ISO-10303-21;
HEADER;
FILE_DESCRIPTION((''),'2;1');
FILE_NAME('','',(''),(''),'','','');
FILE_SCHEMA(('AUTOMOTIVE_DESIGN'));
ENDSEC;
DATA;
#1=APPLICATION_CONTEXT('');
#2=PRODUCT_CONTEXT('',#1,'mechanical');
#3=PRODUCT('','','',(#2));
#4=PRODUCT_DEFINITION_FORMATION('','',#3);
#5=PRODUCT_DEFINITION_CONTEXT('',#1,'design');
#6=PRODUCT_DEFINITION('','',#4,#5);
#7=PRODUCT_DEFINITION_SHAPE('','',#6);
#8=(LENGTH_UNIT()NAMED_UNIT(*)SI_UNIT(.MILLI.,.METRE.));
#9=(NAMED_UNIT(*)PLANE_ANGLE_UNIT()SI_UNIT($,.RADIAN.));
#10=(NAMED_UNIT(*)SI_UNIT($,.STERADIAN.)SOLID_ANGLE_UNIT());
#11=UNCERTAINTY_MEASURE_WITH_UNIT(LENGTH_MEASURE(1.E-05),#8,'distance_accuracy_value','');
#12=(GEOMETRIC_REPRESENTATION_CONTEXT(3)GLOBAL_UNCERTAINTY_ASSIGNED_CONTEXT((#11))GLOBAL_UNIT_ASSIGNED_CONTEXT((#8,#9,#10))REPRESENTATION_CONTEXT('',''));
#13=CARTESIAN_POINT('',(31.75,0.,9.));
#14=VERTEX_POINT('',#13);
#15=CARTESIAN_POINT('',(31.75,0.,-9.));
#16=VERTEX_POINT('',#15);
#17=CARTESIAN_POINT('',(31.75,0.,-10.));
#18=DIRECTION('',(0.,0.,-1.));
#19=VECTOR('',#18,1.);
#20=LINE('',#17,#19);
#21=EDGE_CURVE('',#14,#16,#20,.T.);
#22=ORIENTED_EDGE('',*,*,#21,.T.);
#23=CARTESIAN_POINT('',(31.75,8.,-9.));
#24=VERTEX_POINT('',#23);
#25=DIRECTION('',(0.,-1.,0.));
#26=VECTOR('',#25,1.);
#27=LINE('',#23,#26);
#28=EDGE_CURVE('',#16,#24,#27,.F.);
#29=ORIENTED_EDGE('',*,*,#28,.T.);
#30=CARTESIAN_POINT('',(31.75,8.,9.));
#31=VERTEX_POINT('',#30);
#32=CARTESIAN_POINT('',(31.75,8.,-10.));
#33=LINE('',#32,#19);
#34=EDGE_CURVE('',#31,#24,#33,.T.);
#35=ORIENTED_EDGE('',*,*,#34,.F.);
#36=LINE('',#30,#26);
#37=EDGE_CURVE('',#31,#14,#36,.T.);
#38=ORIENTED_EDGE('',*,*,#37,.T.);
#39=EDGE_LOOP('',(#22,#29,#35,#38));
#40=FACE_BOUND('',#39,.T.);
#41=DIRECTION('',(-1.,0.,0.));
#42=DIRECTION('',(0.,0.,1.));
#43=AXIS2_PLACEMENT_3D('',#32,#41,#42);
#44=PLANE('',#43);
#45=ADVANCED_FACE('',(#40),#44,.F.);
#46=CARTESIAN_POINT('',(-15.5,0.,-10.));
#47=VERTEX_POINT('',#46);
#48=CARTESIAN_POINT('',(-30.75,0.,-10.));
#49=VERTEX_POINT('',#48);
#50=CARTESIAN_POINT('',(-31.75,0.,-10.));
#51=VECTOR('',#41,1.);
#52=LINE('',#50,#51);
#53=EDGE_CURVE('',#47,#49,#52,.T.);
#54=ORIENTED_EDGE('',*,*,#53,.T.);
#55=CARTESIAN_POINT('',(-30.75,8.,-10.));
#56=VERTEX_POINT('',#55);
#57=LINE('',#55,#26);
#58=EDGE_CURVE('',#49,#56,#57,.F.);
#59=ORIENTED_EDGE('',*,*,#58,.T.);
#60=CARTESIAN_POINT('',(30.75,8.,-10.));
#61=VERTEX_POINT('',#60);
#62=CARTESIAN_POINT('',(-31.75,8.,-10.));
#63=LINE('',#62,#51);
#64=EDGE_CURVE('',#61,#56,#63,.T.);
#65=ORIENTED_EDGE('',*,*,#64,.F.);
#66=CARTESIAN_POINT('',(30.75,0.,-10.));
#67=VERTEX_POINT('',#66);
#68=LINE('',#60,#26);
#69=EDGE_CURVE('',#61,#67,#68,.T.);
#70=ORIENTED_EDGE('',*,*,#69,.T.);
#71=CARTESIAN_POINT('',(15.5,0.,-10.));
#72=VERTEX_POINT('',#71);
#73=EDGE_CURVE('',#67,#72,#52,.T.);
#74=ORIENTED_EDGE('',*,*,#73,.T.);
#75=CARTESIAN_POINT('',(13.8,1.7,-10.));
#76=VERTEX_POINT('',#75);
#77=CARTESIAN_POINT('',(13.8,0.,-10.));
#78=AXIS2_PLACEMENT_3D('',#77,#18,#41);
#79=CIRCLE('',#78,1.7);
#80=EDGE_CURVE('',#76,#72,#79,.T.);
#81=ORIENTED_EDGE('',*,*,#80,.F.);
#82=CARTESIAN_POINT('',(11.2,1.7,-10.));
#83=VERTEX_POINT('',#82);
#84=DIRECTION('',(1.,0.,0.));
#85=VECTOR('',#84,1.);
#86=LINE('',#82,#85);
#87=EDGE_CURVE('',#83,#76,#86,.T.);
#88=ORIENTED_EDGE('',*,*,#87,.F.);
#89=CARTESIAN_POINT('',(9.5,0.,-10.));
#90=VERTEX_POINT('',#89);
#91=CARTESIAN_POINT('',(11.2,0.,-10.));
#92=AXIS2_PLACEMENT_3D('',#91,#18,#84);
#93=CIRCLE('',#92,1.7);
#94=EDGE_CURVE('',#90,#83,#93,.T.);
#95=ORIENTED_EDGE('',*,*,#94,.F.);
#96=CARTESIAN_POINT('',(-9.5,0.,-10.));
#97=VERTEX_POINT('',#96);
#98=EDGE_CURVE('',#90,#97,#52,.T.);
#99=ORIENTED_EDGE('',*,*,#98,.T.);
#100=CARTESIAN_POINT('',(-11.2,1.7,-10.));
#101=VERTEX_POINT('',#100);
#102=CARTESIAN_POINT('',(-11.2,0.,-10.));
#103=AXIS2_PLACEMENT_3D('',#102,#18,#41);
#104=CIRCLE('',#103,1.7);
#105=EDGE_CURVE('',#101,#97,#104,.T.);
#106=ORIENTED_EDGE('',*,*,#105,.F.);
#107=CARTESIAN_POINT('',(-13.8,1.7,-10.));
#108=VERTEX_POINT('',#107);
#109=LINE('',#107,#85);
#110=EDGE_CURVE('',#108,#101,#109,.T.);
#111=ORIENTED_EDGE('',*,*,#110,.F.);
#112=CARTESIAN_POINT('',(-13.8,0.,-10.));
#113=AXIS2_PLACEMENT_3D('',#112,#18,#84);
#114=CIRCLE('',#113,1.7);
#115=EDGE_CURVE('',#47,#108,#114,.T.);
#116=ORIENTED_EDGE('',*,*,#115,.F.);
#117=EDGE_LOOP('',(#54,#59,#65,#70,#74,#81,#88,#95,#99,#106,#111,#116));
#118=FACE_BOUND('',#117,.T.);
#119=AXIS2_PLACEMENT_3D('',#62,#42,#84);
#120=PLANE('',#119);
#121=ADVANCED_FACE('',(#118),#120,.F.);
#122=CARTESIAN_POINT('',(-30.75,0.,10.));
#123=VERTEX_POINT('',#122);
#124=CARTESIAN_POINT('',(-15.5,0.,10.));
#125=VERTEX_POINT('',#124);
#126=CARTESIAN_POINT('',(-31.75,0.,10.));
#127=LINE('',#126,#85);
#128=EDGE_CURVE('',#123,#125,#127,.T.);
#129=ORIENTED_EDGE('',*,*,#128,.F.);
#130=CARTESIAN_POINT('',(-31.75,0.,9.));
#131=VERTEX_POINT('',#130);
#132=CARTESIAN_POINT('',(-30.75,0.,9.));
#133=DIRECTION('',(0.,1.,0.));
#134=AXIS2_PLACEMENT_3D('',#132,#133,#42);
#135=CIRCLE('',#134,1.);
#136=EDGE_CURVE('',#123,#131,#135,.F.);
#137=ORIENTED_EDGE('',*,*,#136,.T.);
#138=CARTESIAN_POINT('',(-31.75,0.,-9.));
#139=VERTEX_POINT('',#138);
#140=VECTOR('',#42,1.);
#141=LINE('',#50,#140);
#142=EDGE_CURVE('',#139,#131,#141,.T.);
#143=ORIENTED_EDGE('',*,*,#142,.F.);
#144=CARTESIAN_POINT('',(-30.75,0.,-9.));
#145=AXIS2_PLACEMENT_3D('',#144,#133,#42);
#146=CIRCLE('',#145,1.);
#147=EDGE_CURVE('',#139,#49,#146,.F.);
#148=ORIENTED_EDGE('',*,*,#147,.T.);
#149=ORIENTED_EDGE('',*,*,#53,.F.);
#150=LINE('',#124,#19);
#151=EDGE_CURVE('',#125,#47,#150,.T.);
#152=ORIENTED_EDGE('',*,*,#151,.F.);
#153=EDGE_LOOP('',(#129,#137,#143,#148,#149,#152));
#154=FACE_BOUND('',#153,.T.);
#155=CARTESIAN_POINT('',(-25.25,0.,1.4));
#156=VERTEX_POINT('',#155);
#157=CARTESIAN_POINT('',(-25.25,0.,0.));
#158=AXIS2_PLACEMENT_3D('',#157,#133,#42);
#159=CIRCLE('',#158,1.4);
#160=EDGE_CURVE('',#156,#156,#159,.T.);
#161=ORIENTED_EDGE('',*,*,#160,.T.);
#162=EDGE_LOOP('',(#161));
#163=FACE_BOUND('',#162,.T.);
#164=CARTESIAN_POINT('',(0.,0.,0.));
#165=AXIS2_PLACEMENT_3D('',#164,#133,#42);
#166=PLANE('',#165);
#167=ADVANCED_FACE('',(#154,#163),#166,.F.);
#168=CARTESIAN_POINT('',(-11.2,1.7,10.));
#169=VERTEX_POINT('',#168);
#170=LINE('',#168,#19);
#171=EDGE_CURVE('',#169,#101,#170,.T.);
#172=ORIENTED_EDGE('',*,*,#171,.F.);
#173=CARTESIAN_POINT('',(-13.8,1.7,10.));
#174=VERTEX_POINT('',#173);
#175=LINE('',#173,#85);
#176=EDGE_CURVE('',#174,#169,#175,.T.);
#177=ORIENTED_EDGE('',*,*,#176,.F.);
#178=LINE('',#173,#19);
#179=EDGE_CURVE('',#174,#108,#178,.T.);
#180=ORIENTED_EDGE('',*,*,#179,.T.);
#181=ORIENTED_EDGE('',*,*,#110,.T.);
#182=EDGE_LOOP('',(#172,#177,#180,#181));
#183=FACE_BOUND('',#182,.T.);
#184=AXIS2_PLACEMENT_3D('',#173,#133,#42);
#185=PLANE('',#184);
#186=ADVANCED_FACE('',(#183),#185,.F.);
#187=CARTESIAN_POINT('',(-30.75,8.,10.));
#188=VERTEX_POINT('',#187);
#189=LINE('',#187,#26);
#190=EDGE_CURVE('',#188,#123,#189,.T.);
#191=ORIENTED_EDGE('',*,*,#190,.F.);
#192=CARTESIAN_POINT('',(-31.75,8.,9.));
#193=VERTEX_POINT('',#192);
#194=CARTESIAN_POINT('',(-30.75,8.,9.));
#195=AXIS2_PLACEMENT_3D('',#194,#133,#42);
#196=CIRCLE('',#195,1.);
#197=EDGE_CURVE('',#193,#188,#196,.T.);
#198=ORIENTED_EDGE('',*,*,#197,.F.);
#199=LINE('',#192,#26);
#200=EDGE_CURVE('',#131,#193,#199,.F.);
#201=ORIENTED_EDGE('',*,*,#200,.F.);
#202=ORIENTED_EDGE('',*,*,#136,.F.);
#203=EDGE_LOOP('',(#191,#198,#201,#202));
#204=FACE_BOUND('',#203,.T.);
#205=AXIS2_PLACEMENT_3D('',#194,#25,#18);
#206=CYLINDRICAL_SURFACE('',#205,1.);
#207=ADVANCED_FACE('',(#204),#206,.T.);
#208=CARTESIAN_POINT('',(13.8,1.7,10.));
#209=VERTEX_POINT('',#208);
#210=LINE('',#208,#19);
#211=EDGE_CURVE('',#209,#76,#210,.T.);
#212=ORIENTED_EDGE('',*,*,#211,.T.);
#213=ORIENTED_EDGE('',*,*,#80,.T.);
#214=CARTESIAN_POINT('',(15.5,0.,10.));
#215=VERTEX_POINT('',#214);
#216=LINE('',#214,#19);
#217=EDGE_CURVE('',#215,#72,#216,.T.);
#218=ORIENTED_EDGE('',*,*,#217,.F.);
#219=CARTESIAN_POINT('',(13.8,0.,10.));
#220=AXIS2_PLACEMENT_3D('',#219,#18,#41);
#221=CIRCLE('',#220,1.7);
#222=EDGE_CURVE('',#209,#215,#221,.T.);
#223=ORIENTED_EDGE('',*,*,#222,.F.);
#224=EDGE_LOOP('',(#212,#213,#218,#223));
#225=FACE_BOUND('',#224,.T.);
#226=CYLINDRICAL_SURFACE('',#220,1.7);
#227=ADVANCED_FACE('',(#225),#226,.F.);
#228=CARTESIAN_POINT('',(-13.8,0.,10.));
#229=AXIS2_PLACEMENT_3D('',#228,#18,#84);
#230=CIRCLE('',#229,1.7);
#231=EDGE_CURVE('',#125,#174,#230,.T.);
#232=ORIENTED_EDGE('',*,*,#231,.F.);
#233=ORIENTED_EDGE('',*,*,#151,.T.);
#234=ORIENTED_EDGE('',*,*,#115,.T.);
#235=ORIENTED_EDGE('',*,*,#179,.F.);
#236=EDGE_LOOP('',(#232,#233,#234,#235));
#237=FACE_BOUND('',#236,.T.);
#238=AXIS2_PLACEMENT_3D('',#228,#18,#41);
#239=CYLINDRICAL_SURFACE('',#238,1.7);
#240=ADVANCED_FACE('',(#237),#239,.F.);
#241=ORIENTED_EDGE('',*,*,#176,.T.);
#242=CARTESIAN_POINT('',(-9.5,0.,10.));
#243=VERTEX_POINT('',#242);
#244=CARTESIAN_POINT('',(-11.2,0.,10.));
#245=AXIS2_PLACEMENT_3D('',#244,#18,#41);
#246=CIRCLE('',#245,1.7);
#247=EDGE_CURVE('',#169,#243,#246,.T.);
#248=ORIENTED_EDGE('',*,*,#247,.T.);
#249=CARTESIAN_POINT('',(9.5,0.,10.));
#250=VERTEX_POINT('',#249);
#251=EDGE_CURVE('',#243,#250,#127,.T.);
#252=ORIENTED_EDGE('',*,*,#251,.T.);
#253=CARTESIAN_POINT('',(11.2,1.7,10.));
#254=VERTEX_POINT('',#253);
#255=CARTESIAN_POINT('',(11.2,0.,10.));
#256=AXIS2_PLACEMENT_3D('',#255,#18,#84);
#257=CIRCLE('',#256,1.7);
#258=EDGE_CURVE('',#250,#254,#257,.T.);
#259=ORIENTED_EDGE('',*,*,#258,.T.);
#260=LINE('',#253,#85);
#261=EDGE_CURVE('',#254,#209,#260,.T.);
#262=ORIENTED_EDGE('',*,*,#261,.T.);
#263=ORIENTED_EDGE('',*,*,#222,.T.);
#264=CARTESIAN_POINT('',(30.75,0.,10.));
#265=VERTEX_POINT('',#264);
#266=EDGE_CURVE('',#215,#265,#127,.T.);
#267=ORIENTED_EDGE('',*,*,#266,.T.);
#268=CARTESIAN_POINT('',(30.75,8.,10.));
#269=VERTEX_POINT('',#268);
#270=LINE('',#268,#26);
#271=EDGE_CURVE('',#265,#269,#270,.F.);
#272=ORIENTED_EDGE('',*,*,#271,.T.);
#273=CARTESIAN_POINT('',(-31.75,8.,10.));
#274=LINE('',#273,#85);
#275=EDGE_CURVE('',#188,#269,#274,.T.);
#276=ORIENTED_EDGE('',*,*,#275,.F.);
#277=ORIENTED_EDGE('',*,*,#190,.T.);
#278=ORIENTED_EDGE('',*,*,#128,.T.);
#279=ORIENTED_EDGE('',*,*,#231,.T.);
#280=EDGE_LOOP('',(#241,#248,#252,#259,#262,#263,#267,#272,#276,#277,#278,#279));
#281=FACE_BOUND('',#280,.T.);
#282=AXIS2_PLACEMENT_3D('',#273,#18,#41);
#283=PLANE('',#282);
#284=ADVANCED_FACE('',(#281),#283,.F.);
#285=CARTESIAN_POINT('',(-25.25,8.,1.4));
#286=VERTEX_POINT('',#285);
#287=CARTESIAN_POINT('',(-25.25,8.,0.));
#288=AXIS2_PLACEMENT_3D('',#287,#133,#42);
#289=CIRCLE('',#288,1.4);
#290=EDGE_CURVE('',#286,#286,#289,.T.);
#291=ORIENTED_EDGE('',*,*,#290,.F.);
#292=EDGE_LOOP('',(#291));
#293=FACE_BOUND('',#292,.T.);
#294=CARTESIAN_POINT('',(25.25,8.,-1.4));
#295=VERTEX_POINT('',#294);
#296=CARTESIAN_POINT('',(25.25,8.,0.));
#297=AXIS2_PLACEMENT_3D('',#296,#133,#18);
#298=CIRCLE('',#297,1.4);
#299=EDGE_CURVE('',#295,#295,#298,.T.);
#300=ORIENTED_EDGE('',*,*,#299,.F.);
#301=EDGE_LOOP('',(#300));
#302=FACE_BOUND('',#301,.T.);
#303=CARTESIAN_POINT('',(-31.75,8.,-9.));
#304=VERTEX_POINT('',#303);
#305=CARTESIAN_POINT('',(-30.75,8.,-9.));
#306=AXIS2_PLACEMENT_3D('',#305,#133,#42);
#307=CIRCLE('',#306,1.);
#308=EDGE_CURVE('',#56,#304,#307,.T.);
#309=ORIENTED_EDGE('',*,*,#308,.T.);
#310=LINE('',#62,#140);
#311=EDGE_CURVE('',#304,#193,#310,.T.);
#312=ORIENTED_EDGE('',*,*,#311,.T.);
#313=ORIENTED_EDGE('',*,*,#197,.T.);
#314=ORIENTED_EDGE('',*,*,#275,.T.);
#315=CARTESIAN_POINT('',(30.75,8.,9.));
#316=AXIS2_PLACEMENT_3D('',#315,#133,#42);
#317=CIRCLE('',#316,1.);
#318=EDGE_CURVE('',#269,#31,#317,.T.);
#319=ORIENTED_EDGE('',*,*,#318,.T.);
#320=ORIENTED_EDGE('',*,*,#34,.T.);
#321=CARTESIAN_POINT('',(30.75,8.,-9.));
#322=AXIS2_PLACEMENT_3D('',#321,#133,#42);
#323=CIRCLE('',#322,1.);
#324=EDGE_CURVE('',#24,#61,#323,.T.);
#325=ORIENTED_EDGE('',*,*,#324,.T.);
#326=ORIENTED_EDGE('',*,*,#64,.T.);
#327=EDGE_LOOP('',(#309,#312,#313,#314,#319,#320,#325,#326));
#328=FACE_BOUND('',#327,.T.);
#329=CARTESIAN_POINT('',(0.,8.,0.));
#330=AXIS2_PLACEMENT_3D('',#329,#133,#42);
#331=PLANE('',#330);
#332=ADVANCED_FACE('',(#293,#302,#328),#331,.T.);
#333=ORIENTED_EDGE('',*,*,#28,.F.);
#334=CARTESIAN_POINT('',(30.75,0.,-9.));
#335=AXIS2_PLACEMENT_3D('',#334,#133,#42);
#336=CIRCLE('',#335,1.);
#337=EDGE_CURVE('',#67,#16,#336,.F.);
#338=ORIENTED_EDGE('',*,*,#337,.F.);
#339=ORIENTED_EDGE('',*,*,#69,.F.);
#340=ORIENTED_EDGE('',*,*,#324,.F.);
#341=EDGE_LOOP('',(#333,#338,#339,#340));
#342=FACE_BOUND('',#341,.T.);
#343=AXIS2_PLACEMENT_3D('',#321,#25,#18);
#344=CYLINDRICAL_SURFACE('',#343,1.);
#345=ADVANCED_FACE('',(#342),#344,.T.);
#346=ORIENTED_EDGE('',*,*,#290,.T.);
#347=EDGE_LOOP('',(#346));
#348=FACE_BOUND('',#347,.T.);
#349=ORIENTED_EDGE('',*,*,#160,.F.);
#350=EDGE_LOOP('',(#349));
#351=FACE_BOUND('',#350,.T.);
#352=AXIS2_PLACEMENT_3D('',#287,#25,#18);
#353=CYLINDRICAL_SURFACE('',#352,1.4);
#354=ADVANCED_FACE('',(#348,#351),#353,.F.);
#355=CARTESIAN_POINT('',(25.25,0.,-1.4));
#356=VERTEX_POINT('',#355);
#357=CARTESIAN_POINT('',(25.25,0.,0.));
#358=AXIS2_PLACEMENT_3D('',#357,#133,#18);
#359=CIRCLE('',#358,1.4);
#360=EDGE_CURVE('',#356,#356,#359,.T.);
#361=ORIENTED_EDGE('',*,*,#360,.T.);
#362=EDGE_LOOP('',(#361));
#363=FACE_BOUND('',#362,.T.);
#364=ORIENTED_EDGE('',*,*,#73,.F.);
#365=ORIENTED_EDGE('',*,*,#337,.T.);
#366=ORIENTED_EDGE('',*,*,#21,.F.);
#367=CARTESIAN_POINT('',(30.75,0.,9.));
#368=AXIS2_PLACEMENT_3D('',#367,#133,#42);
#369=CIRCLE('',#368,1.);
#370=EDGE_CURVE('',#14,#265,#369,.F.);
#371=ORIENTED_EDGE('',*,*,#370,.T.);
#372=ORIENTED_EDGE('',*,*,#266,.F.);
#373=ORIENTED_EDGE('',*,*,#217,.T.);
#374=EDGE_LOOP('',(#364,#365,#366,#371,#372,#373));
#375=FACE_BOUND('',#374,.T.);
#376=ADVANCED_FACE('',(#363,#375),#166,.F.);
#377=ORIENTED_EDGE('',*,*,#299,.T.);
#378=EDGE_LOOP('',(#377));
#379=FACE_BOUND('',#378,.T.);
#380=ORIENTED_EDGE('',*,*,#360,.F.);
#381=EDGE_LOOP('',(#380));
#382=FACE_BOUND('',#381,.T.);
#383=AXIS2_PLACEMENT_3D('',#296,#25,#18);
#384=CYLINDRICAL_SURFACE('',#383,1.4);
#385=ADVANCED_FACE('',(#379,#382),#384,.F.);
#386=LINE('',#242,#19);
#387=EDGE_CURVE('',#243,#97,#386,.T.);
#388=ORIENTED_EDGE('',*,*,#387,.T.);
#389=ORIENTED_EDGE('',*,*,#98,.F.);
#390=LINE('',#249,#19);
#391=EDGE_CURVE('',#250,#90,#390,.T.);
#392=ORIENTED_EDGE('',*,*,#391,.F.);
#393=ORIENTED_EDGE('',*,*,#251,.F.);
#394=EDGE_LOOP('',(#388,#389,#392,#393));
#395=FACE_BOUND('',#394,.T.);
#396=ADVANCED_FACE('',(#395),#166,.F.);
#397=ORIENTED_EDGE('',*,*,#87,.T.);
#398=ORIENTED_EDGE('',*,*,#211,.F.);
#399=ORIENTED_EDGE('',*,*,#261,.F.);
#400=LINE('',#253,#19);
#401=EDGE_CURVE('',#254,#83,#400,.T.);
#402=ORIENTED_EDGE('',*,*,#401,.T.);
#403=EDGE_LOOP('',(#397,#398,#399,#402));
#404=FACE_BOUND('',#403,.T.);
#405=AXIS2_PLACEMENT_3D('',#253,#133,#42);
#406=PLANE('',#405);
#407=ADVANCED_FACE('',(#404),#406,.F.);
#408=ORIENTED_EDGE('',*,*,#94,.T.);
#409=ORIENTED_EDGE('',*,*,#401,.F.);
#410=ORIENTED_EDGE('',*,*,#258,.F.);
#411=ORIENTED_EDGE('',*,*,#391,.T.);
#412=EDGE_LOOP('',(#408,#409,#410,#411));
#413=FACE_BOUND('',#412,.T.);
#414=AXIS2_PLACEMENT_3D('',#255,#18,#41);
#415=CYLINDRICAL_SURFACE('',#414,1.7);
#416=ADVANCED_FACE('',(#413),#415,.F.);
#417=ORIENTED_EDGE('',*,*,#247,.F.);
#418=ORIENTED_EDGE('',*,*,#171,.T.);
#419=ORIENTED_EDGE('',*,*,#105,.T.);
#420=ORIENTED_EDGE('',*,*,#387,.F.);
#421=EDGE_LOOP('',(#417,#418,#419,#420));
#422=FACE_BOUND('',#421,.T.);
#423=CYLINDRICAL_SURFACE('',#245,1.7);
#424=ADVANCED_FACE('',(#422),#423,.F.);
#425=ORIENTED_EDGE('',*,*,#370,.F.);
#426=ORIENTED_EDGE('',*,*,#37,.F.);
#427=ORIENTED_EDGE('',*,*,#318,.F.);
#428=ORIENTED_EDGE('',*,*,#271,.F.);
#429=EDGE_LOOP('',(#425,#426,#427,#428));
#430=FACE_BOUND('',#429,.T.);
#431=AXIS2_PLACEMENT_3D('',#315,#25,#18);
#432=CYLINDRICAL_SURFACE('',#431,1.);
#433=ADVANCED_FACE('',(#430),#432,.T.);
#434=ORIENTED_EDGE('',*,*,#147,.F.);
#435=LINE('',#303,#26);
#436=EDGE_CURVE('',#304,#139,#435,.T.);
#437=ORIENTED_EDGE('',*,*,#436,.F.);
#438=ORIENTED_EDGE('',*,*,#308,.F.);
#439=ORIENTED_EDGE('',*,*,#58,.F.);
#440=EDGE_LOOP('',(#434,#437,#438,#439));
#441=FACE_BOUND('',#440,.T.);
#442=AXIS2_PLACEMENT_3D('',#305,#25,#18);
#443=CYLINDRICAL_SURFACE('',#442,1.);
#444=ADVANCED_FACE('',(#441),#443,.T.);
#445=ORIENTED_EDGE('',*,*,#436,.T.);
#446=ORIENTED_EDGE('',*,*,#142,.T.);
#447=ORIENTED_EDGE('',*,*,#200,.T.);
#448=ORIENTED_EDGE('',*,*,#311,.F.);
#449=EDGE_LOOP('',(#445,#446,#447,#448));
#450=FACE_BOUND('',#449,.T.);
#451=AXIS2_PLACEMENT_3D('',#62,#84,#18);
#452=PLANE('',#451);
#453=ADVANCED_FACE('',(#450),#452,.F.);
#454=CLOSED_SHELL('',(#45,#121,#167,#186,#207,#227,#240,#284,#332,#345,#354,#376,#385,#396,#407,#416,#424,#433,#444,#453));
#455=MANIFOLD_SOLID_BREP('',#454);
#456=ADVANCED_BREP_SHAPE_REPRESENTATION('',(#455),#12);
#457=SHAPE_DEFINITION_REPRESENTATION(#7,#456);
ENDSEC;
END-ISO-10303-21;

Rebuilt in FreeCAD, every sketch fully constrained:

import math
import FreeCAD as App
import Part
import Sketcher
from FreeCAD import Vector
Q = App.Units.Quantity


def edges_at(feature, points):
    """Names of the edges that pass closest to the given points."""
    edges = feature.Shape.Edges
    near = lambda p: min(range(len(edges)), key=lambda i: edges[i].distToShape(Part.Vertex(*p))[0])
    return sorted({f"Edge{near(p) + 1}" for p in points})


def add_polygon(sketch, points):
    """Adds a closed chain of lines whose ends are joined by coincident constraints."""
    first, n = sketch.GeometryCount, len(points)
    for a, b in zip(points, points[1:] + points[:1]):
        sketch.addGeometry(Part.LineSegment(App.Vector(*a, 0), App.Vector(*b, 0)), False)
    for i in range(n):
        sketch.addConstraint(Sketcher.Constraint("Coincident", first + i, 2, first + (i + 1) % n, 1))

doc = App.newDocument("Part")
body = doc.addObject("PartDesign::Body", "Body")

# Sketch on XZ plane
sketch1 = doc.addObject("Sketcher::SketchObject", "Sketch")
body.addObject(sketch1)
sketch1.AttachmentSupport = (doc.XZ_Plane, [""])
sketch1.MapMode = "FlatFace"
add_polygon(sketch1, [(-31.8, -10), (-31.8, 10), (31.8, 10), (31.8, -10)])  # lines 0-3
sketch1.addGeometry(Part.Circle(Vector(-25.2, 0, 0), Vector(0, 0, 1), 1.4), False)  # 4
sketch1.addGeometry(Part.Circle(Vector(25.2, 0, 0), Vector(0, 0, 1), 1.4), False)  # 5
sketch1.addConstraint([
    Sketcher.Constraint("Vertical", 0),
    Sketcher.Constraint("Horizontal", 1),
    Sketcher.Constraint("Vertical", 2),
    Sketcher.Constraint("Horizontal", 3),
    Sketcher.Constraint("Equal", 4, 5),
    Sketcher.Constraint("Symmetric", 4, 3, 5, 3, -1, 1),
    Sketcher.Constraint("Symmetric", 0, 2, 2, 2, -1, 1),
    Sketcher.Constraint("PointOnObject", 4, 3, -1),
    Sketcher.Constraint("Diameter", 4, Q("2.8 mm")),
    Sketcher.Constraint("DistanceY", 0, 1, 0, 2, Q("20 mm")),
    Sketcher.Constraint("DistanceX", 1, 1, 1, 2, Q("63.5 mm")),
    Sketcher.Constraint("DistanceX", 0, 2, 5, 3, Q("57 mm")),
])
pad1 = doc.addObject("PartDesign::Pad", "Pad")
body.addObject(pad1)
pad1.Profile = sketch1
pad1.Length = 8
pad1.Reversed = True

# Sketch on XY plane
sketch2 = doc.addObject("Sketcher::SketchObject", "Sketch001")
body.addObject(sketch2)
sketch2.AttachmentSupport = (doc.XY_Plane, [""])
sketch2.MapMode = "FlatFace"
sketch2.AttachmentOffset = App.Placement(Vector(0, 0, -10), App.Rotation())
sketch2.addGeometry([
    Part.LineSegment(Vector(-9.5, 0, 0), Vector(-15.5, 0, 0)),  # 0
    Part.ArcOfCircle(Part.Circle(Vector(-13.8, 0, 0), Vector(0, 0, 1), 1.7), math.radians(90), math.radians(180)),  # 1
    Part.LineSegment(Vector(-13.8, 1.7, 0), Vector(-11.2, 1.7, 0)),  # 2
    Part.ArcOfCircle(Part.Circle(Vector(-11.2, 0, 0), Vector(0, 0, 1), 1.7), math.radians(0), math.radians(90)),  # 3
    Part.LineSegment(Vector(15.5, 0, 0), Vector(9.5, 0, 0)),  # 4
    Part.ArcOfCircle(Part.Circle(Vector(11.2, 0, 0), Vector(0, 0, 1), 1.7), math.radians(90), math.radians(180)),  # 5
    Part.LineSegment(Vector(11.2, 1.7, 0), Vector(13.8, 1.7, 0)),  # 6
    Part.ArcOfCircle(Part.Circle(Vector(13.8, 0, 0), Vector(0, 0, 1), 1.7), math.radians(0), math.radians(90)),  # 7
], False)
sketch2.addConstraint([
    Sketcher.Constraint("Coincident", 0, 2, 1, 2),
    Sketcher.Constraint("Tangent", 1, 1, 2, 1),
    Sketcher.Constraint("Tangent", 2, 2, 3, 2),
    Sketcher.Constraint("Coincident", 3, 1, 0, 1),
    Sketcher.Constraint("Coincident", 4, 2, 5, 2),
    Sketcher.Constraint("Tangent", 5, 1, 6, 1),
    Sketcher.Constraint("Tangent", 6, 2, 7, 2),
    Sketcher.Constraint("Coincident", 7, 1, 4, 1),
    Sketcher.Constraint("Horizontal", 0),
    Sketcher.Constraint("Horizontal", 2),
    Sketcher.Constraint("Horizontal", 4),
    Sketcher.Constraint("Horizontal", 6),
    Sketcher.Constraint("Equal", 1, 3),
    Sketcher.Constraint("Equal", 3, 5),
    Sketcher.Constraint("Equal", 5, 7),
    Sketcher.Constraint("Symmetric", 3, 3, 5, 3, -1, 1),
    Sketcher.Constraint("Symmetric", 0, 2, 7, 1, -1, 1),
    Sketcher.Constraint("PointOnObject", 1, 3, -1),
    Sketcher.Constraint("PointOnObject", 0, 2, -1),
    Sketcher.Constraint("Radius", 1, Q("1.7 mm")),
    Sketcher.Constraint("DistanceX", 0, 2, 0, 1, Q("6 mm")),
    Sketcher.Constraint("DistanceX", 1, 3, 5, 3, Q("25 mm")),
])
pocket1 = doc.addObject("PartDesign::Pocket", "Pocket")
body.addObject(pocket1)
pocket1.Profile = sketch2
pocket1.Type = "ThroughAll"
pocket1.Reversed = True
doc.recompute()

fillet = doc.addObject("PartDesign::Fillet", "Fillet")
body.addObject(fillet)
fillet.Base = (pocket1, edges_at(pocket1, [
    (-31.75, 4, -10),
    (31.75, 4, -10),
    (31.75, 4, 10),
    (-31.75, 4, 10),
]))
fillet.Radius = 1

doc.recompute()
